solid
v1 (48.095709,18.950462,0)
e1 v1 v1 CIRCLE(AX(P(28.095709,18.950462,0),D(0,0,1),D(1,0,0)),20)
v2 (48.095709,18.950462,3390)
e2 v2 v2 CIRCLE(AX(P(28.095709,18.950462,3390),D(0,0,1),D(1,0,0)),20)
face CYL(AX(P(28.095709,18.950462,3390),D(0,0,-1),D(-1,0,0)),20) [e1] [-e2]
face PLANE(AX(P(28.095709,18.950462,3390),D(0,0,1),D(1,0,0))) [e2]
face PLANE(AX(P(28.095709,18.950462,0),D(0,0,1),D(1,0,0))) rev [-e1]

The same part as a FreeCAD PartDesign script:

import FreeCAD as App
import Part
import Sketcher
Q = App.Units.Quantity

doc = App.newDocument("Part")
body = doc.addObject("PartDesign::Body", "Body")

# Sketch on XY plane
sketch1 = body.newObject("Sketcher::SketchObject", "Sketch")
sketch1.AttachmentSupport = (doc.getObject("XY_Plane"), [""])
sketch1.MapMode = "FlatFace"
sketch1.addGeometry(Part.Circle(App.Vector(28, 19, 0), App.Vector(0, 0, 1), 20), False)
sketch1.addConstraint(Sketcher.Constraint("Diameter", 0, Q("40 mm")))
sketch1.addConstraint(Sketcher.Constraint("DistanceX", -1, 1, 0, 3, Q("28.095709 mm")))
sketch1.addConstraint(Sketcher.Constraint("DistanceY", -1, 1, 0, 3, Q("18.950462 mm")))
pad1 = body.newObject("PartDesign::Pad", "Pad")
pad1.Profile = sketch1
pad1.Length = 3390

doc.recompute()
